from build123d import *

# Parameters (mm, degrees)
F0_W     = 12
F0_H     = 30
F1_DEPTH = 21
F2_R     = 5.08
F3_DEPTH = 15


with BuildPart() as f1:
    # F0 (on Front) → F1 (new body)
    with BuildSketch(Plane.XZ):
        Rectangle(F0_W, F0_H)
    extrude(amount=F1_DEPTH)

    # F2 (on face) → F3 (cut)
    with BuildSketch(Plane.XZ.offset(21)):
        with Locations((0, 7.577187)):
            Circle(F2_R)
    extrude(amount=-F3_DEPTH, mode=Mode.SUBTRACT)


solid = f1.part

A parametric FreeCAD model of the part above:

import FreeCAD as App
import Part
import Sketcher
Q = App.Units.Quantity

doc = App.newDocument("Part")
params = doc.addObject("Spreadsheet::Sheet", "Params")
for row, (alias, value) in enumerate([
    ("sketch1_width", "12 mm"),
    ("sketch1_height", "30 mm"),
    ("pad1_length", "21 mm"),
    ("sketch2_diameter", "10.16 mm"),
    ("pocket1_length", "15 mm"),
], start=1):
    params.set(f"A{row}", alias)
    params.set(f"B{row}", "=" + value)
    params.setAlias(f"B{row}", alias)

body = doc.addObject("PartDesign::Body", "Body")

# Sketch on XZ plane
sketch1 = doc.addObject("Sketcher::SketchObject", "Sketch")
body.addObject(sketch1)
sketch1.AttachmentSupport = (doc.XZ_Plane, [""])
sketch1.MapMode = "FlatFace"
sketch1.addGeometry([
    Part.LineSegment(App.Vector(-6, 15, 0), App.Vector(-6, -15, 0)),
    Part.LineSegment(App.Vector(-6, -15, 0), App.Vector(6, -15, 0)),
    Part.LineSegment(App.Vector(6, -15, 0), App.Vector(6, 15, 0)),
    Part.LineSegment(App.Vector(6, 15, 0), App.Vector(-6, 15, 0)),
], False)
sketch1.addConstraint([
    Sketcher.Constraint("Coincident", 0, 2, 1, 1),
    Sketcher.Constraint("Coincident", 1, 2, 2, 1),
    Sketcher.Constraint("Coincident", 2, 2, 3, 1),
    Sketcher.Constraint("Coincident", 3, 2, 0, 1),
    Sketcher.Constraint("Vertical", 0),
    Sketcher.Constraint("Horizontal", 1),
    Sketcher.Constraint("Vertical", 2),
    Sketcher.Constraint("Horizontal", 3),
    Sketcher.Constraint("Symmetric", 0, 2, 2, 2, -1, 1),
    Sketcher.Constraint("DistanceX", 1, 1, 1, 2, Q("12 mm")),
    Sketcher.Constraint("DistanceY", 0, 2, 0, 1, Q("30 mm")),
])
sketch1.setExpression("Constraints[9]", "Params.sketch1_width")
sketch1.setExpression("Constraints[10]", "Params.sketch1_height")
pad1 = doc.addObject("PartDesign::Pad", "Pad")
body.addObject(pad1)
pad1.Profile = sketch1
pad1.setExpression("Length", "Params.pad1_length")

# Sketch on XZ plane
sketch2 = doc.addObject("Sketcher::SketchObject", "Sketch001")
body.addObject(sketch2)
sketch2.AttachmentSupport = (doc.XZ_Plane, [""])
sketch2.MapMode = "FlatFace"
sketch2.AttachmentOffset = App.Placement(App.Vector(0, 0, 21), App.Rotation())
sketch2.addGeometry(Part.Circle(App.Vector(0, 8, 0), App.Vector(0, 0, 1), 5), False)
sketch2.addConstraint([
    Sketcher.Constraint("PointOnObject", 0, 3, -2),
    Sketcher.Constraint("Diameter", 0, Q("10.16 mm")),
    Sketcher.Constraint("DistanceY", -1, 1, 0, 3, Q("7.577187 mm")),
])
sketch2.setExpression("Constraints[1]", "Params.sketch2_diameter")
pocket1 = doc.addObject("PartDesign::Pocket", "Pocket")
body.addObject(pocket1)
pocket1.Profile = sketch2
pocket1.setExpression("Length", "Params.pocket1_length")

doc.recompute()
